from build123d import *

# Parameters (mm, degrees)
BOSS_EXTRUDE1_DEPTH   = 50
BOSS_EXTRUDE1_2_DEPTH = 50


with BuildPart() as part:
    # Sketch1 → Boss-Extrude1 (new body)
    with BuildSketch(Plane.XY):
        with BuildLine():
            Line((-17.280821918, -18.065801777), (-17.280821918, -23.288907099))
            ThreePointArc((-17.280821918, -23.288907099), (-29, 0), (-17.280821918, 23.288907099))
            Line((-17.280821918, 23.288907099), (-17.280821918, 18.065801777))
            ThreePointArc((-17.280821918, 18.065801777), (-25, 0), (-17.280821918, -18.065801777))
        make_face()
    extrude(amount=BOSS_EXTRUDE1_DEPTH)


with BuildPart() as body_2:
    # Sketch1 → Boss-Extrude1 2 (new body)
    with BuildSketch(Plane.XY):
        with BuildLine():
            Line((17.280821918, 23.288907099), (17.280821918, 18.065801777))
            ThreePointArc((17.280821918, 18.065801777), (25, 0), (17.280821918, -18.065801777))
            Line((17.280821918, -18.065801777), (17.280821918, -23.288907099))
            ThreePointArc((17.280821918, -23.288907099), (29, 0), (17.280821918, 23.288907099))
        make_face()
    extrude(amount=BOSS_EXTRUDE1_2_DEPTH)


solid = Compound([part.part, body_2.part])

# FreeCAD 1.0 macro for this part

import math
import FreeCAD as App
import Part
import Sketcher
from FreeCAD import Vector

doc = App.newDocument("Part")
body = doc.addObject("PartDesign::Body", "Body")

# Sketch on XY plane
sketch1 = body.newObject("Sketcher::SketchObject", "Sketch")
sketch1.AttachmentSupport = (doc.getObject("XY_Plane"), [""])
sketch1.MapMode = "FlatFace"
sketch1.addGeometry([
    Part.LineSegment(Vector(-17, -23, 0), Vector(-17, -18, 0)),
    Part.ArcOfCircle(Part.Circle(Vector(0, 0, 0), Vector(0, 0, 1), 25), math.radians(134), math.radians(226)),
    Part.LineSegment(Vector(-17, 18, 0), Vector(-17, 23, 0)),
    Part.ArcOfCircle(Part.Circle(Vector(0, 0, 0), Vector(0, 0, 1), 29), math.radians(127), math.radians(233)),
], False)
sketch1.addConstraint([
    Sketcher.Constraint("Coincident", 0, 2, 1, 2),
    Sketcher.Constraint("Coincident", 1, 1, 2, 1),
    Sketcher.Constraint("Coincident", 2, 2, 3, 1),
    Sketcher.Constraint("Coincident", 3, 2, 0, 1),
    Sketcher.Constraint("Vertical", 0),
    Sketcher.Constraint("Vertical", 2),
    Sketcher.Constraint("Coincident", 1, 3, -1, 1),
    Sketcher.Constraint("Coincident", 3, 3, -1, 1),
    Sketcher.Constraint("Vertical", 0, 2, 1, 1),
    Sketcher.Constraint("Radius", 1, 25.0),
    Sketcher.Constraint("Radius", 3, 29.0),
    Sketcher.Constraint("DistanceY", 0, 2, -1, 1, 18.065802),
])
pad1 = body.newObject("PartDesign::Pad", "Pad")
pad1.Profile = sketch1
pad1.Length = 50
body2 = doc.addObject("PartDesign::Body", "Body001")

# Sketch on XY plane
sketch2 = body2.newObject("Sketcher::SketchObject", "Sketch001")
sketch2.AttachmentSupport = (doc.getObject("XY_Plane001"), [""])
sketch2.MapMode = "FlatFace"
sketch2.addGeometry([
    Part.LineSegment(Vector(17, 23, 0), Vector(17, 18, 0)),
    Part.ArcOfCircle(Part.Circle(Vector(0, 0, 0), Vector(0, 0, 1), 25), math.radians(-46), math.radians(46)),
    Part.LineSegment(Vector(17, -18, 0), Vector(17, -23, 0)),
    Part.ArcOfCircle(Part.Circle(Vector(0, 0, 0), Vector(0, 0, 1), 29), math.radians(-53), math.radians(53)),
], False)
sketch2.addConstraint([
    Sketcher.Constraint("Coincident", 0, 2, 1, 2),
    Sketcher.Constraint("Coincident", 1, 1, 2, 1),
    Sketcher.Constraint("Coincident", 2, 2, 3, 1),
    Sketcher.Constraint("Coincident", 3, 2, 0, 1),
    Sketcher.Constraint("Vertical", 0),
    Sketcher.Constraint("Vertical", 2),
    Sketcher.Constraint("Coincident", 1, 3, -1, 1),
    Sketcher.Constraint("Coincident", 3, 3, -1, 1),
    Sketcher.Constraint("Vertical", 0, 2, 1, 1),
    Sketcher.Constraint("Radius", 1, 25.0),
    Sketcher.Constraint("Radius", 3, 29.0),
    Sketcher.Constraint("DistanceY", -1, 1, 0, 2, 18.065802),
])
pad2 = body2.newObject("PartDesign::Pad", "Pad001")
pad2.Profile = sketch2
pad2.Length = 50

doc.recompute()
